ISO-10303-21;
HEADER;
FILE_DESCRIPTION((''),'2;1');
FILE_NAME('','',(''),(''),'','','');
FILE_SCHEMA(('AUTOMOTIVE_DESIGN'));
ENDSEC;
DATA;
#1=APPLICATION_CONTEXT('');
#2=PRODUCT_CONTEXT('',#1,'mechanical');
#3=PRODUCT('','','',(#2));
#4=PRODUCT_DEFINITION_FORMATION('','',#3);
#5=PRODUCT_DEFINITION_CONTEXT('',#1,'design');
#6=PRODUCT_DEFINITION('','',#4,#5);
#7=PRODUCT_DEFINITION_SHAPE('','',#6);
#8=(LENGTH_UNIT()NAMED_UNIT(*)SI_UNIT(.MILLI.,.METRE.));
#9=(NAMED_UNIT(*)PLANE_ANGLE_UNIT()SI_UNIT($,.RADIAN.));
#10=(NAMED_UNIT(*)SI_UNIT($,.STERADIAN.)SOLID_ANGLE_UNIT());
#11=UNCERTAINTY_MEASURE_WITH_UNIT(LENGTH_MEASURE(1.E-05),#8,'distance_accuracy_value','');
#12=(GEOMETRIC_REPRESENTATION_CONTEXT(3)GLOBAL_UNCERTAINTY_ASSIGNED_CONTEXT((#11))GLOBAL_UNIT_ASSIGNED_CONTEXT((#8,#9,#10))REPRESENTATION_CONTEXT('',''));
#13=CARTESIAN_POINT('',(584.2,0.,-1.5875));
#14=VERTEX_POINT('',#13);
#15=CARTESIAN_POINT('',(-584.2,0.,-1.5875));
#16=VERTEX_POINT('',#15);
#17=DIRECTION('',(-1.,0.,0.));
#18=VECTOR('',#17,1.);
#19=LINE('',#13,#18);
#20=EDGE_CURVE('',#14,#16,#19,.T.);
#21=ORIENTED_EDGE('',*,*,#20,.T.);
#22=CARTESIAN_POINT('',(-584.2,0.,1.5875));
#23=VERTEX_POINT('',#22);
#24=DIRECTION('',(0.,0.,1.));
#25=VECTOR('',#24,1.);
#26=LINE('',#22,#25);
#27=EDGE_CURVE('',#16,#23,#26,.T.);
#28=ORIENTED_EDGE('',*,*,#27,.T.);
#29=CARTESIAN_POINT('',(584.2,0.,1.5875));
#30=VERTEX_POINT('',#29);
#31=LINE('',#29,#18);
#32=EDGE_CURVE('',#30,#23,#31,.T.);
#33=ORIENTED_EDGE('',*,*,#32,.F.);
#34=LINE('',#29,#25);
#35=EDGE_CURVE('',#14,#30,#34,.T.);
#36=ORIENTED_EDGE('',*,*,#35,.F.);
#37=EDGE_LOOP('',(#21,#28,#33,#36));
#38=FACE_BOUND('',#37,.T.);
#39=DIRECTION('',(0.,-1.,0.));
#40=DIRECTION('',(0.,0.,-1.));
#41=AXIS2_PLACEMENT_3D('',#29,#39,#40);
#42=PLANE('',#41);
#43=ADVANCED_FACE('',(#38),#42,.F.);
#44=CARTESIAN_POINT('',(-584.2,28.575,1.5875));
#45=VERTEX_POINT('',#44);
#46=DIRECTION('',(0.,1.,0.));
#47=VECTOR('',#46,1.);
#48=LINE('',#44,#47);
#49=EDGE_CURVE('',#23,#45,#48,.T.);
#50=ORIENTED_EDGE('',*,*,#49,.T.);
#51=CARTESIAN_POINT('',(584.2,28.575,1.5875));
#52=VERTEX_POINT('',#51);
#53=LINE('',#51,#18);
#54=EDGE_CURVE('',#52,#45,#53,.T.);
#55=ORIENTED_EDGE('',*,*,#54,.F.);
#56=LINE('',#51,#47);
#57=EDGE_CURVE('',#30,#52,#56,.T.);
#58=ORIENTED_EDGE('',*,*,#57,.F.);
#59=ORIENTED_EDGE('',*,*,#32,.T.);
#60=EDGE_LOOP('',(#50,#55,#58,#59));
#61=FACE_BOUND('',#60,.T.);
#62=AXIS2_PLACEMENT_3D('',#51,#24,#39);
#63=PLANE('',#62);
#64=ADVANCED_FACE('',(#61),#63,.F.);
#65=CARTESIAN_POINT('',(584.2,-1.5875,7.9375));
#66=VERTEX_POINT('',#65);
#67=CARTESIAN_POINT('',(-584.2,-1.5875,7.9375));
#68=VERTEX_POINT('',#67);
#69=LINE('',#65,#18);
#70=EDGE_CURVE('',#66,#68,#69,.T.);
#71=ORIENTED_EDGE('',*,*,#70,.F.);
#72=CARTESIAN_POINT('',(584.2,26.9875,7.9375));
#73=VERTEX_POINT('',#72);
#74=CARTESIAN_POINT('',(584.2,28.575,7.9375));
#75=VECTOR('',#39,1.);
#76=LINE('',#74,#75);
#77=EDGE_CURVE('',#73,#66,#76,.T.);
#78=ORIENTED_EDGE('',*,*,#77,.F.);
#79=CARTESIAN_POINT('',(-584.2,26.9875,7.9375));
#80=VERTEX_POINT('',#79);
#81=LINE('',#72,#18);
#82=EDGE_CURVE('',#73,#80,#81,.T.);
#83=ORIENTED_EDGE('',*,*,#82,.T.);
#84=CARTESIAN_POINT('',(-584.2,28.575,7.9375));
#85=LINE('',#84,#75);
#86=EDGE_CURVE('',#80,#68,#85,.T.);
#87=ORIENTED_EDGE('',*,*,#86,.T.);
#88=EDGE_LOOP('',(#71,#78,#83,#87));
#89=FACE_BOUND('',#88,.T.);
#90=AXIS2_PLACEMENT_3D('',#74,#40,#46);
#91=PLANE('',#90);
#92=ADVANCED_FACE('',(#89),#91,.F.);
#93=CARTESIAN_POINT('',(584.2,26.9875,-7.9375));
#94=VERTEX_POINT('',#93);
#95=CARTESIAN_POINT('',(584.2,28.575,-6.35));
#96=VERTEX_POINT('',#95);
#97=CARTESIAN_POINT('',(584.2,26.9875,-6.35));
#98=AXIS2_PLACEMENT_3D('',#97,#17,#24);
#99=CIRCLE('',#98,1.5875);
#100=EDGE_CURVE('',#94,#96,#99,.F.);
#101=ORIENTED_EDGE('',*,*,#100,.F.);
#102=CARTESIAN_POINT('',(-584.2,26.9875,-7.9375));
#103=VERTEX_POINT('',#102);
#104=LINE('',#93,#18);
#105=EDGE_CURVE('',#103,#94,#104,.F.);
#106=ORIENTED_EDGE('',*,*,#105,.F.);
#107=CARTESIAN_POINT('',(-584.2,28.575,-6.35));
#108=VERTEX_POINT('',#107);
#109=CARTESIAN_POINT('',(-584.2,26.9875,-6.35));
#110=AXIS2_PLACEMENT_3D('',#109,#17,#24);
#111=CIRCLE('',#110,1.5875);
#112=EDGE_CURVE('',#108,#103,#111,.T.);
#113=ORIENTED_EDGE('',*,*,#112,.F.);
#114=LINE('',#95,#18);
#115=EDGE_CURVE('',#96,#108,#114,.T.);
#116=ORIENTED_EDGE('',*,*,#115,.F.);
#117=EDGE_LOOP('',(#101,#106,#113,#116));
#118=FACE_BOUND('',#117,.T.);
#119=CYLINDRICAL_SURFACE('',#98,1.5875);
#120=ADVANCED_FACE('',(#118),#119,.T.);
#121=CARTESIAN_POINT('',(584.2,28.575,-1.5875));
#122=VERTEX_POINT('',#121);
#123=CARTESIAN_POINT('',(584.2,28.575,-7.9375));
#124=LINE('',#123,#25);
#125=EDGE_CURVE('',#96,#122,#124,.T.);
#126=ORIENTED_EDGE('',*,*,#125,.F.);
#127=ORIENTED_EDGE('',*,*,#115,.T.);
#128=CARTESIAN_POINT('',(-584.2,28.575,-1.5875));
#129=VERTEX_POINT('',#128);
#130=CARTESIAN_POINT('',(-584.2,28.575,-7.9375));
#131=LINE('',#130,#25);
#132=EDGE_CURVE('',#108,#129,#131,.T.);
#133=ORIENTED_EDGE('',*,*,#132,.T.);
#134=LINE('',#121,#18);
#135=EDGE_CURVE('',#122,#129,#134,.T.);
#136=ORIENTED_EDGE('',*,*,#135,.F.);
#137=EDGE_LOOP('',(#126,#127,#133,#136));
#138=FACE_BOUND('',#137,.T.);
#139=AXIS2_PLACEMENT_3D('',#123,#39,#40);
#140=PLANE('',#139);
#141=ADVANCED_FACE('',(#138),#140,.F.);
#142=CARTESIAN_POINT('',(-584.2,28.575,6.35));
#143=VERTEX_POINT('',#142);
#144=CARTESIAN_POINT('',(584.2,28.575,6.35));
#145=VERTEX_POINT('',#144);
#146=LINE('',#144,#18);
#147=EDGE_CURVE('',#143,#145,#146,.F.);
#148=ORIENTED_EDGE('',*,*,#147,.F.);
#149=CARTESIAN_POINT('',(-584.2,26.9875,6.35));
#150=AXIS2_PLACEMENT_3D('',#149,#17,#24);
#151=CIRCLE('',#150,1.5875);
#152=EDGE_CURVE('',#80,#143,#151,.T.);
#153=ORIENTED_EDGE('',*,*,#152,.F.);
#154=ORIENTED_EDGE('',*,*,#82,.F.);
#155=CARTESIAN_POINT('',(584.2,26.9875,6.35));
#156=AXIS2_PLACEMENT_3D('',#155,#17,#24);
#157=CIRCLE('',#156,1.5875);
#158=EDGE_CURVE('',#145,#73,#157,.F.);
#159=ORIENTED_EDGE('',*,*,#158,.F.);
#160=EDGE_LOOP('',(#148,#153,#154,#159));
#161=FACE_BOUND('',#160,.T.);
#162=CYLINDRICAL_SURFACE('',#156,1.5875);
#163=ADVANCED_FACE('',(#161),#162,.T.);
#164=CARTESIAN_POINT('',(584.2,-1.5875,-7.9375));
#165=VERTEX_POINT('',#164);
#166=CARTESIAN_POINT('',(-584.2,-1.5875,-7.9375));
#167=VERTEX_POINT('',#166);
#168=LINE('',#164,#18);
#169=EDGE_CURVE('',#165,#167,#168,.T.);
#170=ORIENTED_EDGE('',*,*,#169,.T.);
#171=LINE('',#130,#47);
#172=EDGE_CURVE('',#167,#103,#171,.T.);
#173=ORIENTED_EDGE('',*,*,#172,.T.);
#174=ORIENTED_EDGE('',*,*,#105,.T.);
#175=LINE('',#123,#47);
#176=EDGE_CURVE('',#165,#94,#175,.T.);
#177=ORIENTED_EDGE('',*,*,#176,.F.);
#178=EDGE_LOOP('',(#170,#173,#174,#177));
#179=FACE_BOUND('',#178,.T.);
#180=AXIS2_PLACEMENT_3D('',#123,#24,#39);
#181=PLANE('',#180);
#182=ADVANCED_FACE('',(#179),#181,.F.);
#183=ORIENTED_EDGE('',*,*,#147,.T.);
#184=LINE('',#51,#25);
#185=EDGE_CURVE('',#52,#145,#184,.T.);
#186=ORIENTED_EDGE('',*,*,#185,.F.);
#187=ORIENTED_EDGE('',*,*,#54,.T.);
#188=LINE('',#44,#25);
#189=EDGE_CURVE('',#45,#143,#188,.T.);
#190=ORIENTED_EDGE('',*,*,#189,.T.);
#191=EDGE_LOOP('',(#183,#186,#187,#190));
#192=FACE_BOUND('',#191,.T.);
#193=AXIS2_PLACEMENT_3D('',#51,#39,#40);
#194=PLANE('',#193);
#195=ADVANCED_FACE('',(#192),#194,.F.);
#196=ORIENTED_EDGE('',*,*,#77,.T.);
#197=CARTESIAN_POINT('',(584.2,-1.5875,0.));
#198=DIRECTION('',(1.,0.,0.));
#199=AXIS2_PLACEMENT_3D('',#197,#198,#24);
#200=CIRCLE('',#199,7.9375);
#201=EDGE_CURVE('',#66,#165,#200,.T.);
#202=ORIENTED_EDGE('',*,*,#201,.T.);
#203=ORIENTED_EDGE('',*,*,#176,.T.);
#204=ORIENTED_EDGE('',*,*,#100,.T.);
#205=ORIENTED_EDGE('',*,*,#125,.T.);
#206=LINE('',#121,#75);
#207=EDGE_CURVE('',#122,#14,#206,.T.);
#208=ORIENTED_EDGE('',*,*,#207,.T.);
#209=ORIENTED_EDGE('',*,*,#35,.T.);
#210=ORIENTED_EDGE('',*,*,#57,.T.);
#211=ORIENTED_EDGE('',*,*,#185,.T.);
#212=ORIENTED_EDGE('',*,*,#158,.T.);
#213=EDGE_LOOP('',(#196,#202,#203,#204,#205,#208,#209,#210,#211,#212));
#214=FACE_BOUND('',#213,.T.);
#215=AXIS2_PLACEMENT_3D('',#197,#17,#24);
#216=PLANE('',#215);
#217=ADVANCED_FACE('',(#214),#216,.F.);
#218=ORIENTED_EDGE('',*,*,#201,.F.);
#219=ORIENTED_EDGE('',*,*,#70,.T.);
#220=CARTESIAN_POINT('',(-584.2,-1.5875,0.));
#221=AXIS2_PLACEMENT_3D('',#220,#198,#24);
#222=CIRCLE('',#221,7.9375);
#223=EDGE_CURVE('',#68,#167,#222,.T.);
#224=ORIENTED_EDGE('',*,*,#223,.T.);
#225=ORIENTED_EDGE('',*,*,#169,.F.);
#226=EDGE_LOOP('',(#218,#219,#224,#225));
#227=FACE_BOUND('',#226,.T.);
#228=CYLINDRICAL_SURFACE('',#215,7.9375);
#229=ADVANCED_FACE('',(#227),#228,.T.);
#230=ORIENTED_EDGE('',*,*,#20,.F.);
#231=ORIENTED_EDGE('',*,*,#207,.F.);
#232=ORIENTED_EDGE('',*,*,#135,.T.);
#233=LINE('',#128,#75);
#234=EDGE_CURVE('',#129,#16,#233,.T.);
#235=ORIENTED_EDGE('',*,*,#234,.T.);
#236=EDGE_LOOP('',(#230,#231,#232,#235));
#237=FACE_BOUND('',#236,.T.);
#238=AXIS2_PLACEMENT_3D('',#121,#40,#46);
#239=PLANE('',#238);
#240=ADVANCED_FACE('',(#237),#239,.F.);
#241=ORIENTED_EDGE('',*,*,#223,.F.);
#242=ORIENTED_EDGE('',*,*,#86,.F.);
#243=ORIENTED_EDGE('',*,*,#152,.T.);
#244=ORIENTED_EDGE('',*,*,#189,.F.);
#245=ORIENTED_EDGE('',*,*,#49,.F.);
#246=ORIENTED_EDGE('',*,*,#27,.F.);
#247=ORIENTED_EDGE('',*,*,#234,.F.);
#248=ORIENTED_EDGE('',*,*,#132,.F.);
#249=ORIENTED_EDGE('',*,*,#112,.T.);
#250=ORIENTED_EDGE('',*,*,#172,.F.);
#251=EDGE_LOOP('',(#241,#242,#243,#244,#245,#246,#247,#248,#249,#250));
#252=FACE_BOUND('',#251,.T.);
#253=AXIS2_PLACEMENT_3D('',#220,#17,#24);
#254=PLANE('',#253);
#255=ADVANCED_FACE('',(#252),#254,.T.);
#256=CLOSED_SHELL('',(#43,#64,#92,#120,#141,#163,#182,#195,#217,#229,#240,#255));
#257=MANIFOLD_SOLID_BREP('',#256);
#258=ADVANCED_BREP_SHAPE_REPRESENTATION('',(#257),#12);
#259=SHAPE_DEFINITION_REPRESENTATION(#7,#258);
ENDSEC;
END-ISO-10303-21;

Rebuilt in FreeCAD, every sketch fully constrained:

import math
import FreeCAD as App
import Part
import Sketcher
Q = App.Units.Quantity


def edges_at(feature, points):
    """Names of the edges that pass closest to the given points."""
    edges = feature.Shape.Edges
    near = lambda p: min(range(len(edges)), key=lambda i: edges[i].distToShape(Part.Vertex(*p))[0])
    return sorted({f"Edge{near(p) + 1}" for p in points})

doc = App.newDocument("Part")
params = doc.addObject("Spreadsheet::Sheet", "Params")
for row, (alias, value) in enumerate([
    ("sketch1_radius", "0.3125 in"),
    ("sketch1_height", "0.25 in"),
    ("sketch1_width", "1.1875 in"),
    ("sketch1_width2", "1.125 in"),
    ("pad1_length", "46 in"),
    ("fillet_radius", "0.0625 in"),
], start=1):
    params.set(f"A{row}", alias)
    params.set(f"B{row}", "=" + value)
    params.setAlias(f"B{row}", alias)

body = doc.addObject("PartDesign::Body", "Body")

# Sketch on YZ plane
sketch1 = body.newObject("Sketcher::SketchObject", "Sketch")
sketch1.AttachmentSupport = (doc.getObject("YZ_Plane"), [""])
sketch1.MapMode = "FlatFace"
sketch1.addGeometry([
    Part.LineSegment(App.Vector(28.6, 1.6, 0), App.Vector(28.6, 7.9, 0)),  # 0
    Part.LineSegment(App.Vector(28.6, 7.9, 0), App.Vector(-1.6, 7.9, 0)),  # 1
    Part.ArcOfCircle(Part.Circle(App.Vector(-1.6, 0, 0), App.Vector(0, 0, 1), 7.9), math.radians(90), math.radians(270)),  # 2
    Part.LineSegment(App.Vector(-1.6, -7.9, 0), App.Vector(28.6, -7.9, 0)),  # 3
    Part.LineSegment(App.Vector(28.6, -7.9, 0), App.Vector(28.6, -1.6, 0)),  # 4
    Part.LineSegment(App.Vector(28.6, -1.6, 0), App.Vector(0, -1.6, 0)),  # 5
    Part.LineSegment(App.Vector(0, -1.6, 0), App.Vector(0, 1.6, 0)),  # 6
    Part.LineSegment(App.Vector(0, 1.6, 0), App.Vector(28.6, 1.6, 0)),  # 7
], False)
sketch1.addConstraint([
    Sketcher.Constraint("Coincident", 0, 2, 1, 1),
    Sketcher.Constraint("Tangent", 1, 2, 2, 1),
    Sketcher.Constraint("Tangent", 2, 2, 3, 1),
    Sketcher.Constraint("Coincident", 3, 2, 4, 1),
    Sketcher.Constraint("Coincident", 4, 2, 5, 1),
    Sketcher.Constraint("Coincident", 5, 2, 6, 1),
    Sketcher.Constraint("Coincident", 6, 2, 7, 1),
    Sketcher.Constraint("Coincident", 7, 2, 0, 1),
    Sketcher.Constraint("Vertical", 0),
    Sketcher.Constraint("Horizontal", 1),
    Sketcher.Constraint("Horizontal", 3),
    Sketcher.Constraint("Vertical", 4),
    Sketcher.Constraint("Horizontal", 5),
    Sketcher.Constraint("Vertical", 6),
    Sketcher.Constraint("Horizontal", 7),
    Sketcher.Constraint("Symmetric", 5, 2, 6, 2, -1, 1),
    Sketcher.Constraint("Symmetric", 0, 2, 3, 2, -1),
    Sketcher.Constraint("Radius", 2, Q("0.3125 in")),
    Sketcher.Constraint("DistanceY", 0, 1, 0, 2, Q("0.25 in")),
    Sketcher.Constraint("DistanceX", 1, 2, 1, 1, Q("1.1875 in")),
    Sketcher.Constraint("DistanceX", 5, 2, 5, 1, Q("1.125 in")),
])
sketch1.setExpression("Constraints[17]", "Params.sketch1_radius")
sketch1.setExpression("Constraints[18]", "Params.sketch1_height")
sketch1.setExpression("Constraints[19]", "Params.sketch1_width")
sketch1.setExpression("Constraints[20]", "Params.sketch1_width2")
pad1 = body.newObject("PartDesign::Pad", "Pad")
pad1.Profile = sketch1
pad1.setExpression("Length", "Params.pad1_length")
pad1.Midplane = True
doc.recompute()

fillet = body.newObject("PartDesign::Fillet", "Fillet")
fillet.Base = (pad1, edges_at(pad1, [(0, 28.575, -7.938), (0, 28.575, 7.938)]))
fillet.setExpression("Radius", "Params.fillet_radius")

doc.recompute()
